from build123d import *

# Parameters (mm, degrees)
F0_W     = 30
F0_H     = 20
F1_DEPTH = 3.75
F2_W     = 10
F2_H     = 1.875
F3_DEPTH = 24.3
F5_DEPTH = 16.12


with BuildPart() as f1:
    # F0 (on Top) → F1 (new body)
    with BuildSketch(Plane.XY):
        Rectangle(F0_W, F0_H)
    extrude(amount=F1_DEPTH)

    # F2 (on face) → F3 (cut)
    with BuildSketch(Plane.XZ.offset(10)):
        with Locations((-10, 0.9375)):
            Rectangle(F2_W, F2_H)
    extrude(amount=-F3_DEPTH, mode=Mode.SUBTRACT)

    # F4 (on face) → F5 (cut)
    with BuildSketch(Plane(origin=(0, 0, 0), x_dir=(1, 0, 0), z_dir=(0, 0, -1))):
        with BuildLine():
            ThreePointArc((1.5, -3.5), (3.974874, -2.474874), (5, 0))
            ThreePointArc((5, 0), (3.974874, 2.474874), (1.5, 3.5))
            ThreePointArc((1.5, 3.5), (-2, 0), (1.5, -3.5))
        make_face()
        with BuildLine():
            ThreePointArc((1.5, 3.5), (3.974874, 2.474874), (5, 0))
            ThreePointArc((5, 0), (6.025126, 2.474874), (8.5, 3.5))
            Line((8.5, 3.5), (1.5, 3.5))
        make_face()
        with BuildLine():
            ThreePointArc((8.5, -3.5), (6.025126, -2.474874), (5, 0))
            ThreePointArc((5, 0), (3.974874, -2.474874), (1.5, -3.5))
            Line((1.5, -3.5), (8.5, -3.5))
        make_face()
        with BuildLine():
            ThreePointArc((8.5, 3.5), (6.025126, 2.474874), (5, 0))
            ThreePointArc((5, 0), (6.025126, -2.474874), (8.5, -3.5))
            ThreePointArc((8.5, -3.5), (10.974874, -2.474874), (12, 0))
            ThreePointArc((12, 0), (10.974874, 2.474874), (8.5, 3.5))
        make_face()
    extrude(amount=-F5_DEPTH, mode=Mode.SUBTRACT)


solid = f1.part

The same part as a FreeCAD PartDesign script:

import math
import FreeCAD as App
import Part
import Sketcher

V = App.Vector
Q = App.Units.Quantity


def add_polygon(sketch, points):
    """Adds a closed chain of lines whose ends are joined by coincident constraints."""
    first, n = sketch.GeometryCount, len(points)
    for a, b in zip(points, points[1:] + points[:1]):
        sketch.addGeometry(Part.LineSegment(App.Vector(*a, 0), App.Vector(*b, 0)), False)
    for i in range(n):
        sketch.addConstraint(Sketcher.Constraint("Coincident", first + i, 2, first + (i + 1) % n, 1))

doc = App.newDocument("Part")
body = doc.addObject("PartDesign::Body", "Body")

# Sketch on XY plane
sketch1 = doc.addObject("Sketcher::SketchObject", "Sketch")
body.addObject(sketch1)
sketch1.AttachmentSupport = (doc.XY_Plane, [""])
sketch1.MapMode = "FlatFace"
add_polygon(sketch1, [(-15, 10), (-15, -10), (15, -10), (15, 10)])  # lines 0-3
sketch1.addConstraint([
    Sketcher.Constraint("Vertical", 0),
    Sketcher.Constraint("Horizontal", 1),
    Sketcher.Constraint("Vertical", 2),
    Sketcher.Constraint("Horizontal", 3),
    Sketcher.Constraint("Symmetric", 0, 2, 2, 2, -1, 1),
    Sketcher.Constraint("DistanceX", 1, 1, 1, 2, Q("30 mm")),
    Sketcher.Constraint("DistanceY", 0, 2, 0, 1, Q("20 mm")),
])
pad1 = doc.addObject("PartDesign::Pad", "Pad")
body.addObject(pad1)
pad1.Profile = sketch1
pad1.Length = 3.75

# Sketch on XZ plane
sketch2 = doc.addObject("Sketcher::SketchObject", "Sketch001")
body.addObject(sketch2)
sketch2.AttachmentSupport = (doc.XZ_Plane, [""])
sketch2.MapMode = "FlatFace"
sketch2.AttachmentOffset = App.Placement(V(0, 0, 10), App.Rotation())
add_polygon(sketch2, [(-15, 1.9), (-15, 0), (-5, 0), (-5, 1.9)])  # lines 0-3
sketch2.addConstraint([
    Sketcher.Constraint("Vertical", 0),
    Sketcher.Constraint("Horizontal", 1),
    Sketcher.Constraint("Vertical", 2),
    Sketcher.Constraint("Horizontal", 3),
    Sketcher.Constraint("PointOnObject", 0, 2, -1),
    Sketcher.Constraint("DistanceX", 1, 1, 1, 2, Q("10 mm")),
    Sketcher.Constraint("DistanceX", 0, 2, -1, 1, Q("15 mm")),
    Sketcher.Constraint("DistanceY", 0, 2, 0, 1, Q("1.875 mm")),
])
pocket1 = doc.addObject("PartDesign::Pocket", "Pocket")
body.addObject(pocket1)
pocket1.Profile = sketch2
pocket1.Length = 24.3

# Sketch on XY plane
sketch3 = doc.addObject("Sketcher::SketchObject", "Sketch002")
body.addObject(sketch3)
sketch3.AttachmentSupport = (doc.XY_Plane, [""])
sketch3.MapMode = "FlatFace"
sketch3.addGeometry([
    Part.LineSegment(V(8.5, -3.5, 0), V(1.5, -3.5, 0)),  # 0
    Part.ArcOfCircle(Part.Circle(V(1.5, 0, 0), V(0, 0, 1), 3.5), math.radians(90), math.radians(270)),  # 1
    Part.LineSegment(V(1.5, 3.5, 0), V(8.5, 3.5, 0)),  # 2
    Part.ArcOfCircle(Part.Circle(V(8.5, 0, 0), V(0, 0, 1), 3.5), math.radians(0), math.radians(90)),  # 3
    Part.ArcOfCircle(Part.Circle(V(8.5, 0, 0), V(0, 0, 1), 3.5), math.radians(-90), math.radians(0)),  # 4
], False)
sketch3.addConstraint([
    Sketcher.Constraint("Tangent", 0, 2, 1, 2),
    Sketcher.Constraint("Tangent", 1, 1, 2, 1),
    Sketcher.Constraint("Tangent", 2, 2, 3, 2),
    Sketcher.Constraint("Tangent", 3, 1, 4, 2),
    Sketcher.Constraint("Tangent", 4, 1, 0, 1),
    Sketcher.Constraint("Horizontal", 0),
    Sketcher.Constraint("Horizontal", 2),
    Sketcher.Constraint("Equal", 1, 3),
    Sketcher.Constraint("PointOnObject", 1, 3, -1),
    Sketcher.Constraint("PointOnObject", 3, 1, -1),
    Sketcher.Constraint("Radius", 1, Q("3.5 mm")),
    Sketcher.Constraint("DistanceX", 0, 2, 0, 1, Q("7 mm")),
    Sketcher.Constraint("DistanceX", -1, 1, 3, 1, Q("12 mm")),
])
pocket2 = doc.addObject("PartDesign::Pocket", "Pocket001")
body.addObject(pocket2)
pocket2.Profile = sketch3
pocket2.Length = 16.12
pocket2.Reversed = True

doc.recompute()
